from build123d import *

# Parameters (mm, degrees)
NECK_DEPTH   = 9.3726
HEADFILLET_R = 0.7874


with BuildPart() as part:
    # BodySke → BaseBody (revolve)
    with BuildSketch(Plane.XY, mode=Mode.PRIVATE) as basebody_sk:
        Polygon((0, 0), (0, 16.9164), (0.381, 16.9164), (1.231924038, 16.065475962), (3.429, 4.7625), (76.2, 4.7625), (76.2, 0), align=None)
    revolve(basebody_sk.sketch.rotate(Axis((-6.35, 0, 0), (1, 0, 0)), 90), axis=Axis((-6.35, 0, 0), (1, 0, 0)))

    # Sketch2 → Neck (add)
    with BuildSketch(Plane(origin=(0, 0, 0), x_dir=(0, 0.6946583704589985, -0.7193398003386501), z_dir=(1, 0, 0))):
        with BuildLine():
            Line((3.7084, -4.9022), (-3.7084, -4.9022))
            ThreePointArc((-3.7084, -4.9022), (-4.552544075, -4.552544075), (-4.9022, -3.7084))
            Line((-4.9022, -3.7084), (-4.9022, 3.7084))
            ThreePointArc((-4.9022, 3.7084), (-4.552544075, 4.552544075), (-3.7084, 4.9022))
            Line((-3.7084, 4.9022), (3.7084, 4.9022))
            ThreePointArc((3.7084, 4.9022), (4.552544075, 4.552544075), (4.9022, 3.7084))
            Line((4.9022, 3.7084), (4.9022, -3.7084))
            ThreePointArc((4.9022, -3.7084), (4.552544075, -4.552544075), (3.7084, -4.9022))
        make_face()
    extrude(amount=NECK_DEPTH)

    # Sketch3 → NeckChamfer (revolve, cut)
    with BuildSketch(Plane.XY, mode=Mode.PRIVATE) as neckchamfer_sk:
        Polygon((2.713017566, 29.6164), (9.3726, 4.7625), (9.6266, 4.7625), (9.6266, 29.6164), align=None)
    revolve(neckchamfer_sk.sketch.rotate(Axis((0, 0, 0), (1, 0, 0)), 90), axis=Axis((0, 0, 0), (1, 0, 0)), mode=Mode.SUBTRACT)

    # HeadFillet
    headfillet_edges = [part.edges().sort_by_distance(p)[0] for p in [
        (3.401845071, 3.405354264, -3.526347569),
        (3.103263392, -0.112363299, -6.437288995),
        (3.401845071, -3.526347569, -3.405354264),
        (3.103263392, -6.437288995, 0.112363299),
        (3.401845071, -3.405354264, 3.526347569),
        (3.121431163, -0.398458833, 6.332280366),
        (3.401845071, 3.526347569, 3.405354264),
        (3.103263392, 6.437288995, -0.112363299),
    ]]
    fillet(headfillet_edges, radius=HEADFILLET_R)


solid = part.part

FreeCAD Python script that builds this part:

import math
import FreeCAD as App
import Part
import Sketcher
Q = App.Units.Quantity


def edges_at(feature, points):
    """Names of the edges that pass closest to the given points."""
    edges = feature.Shape.Edges
    near = lambda p: min(range(len(edges)), key=lambda i: edges[i].distToShape(Part.Vertex(*p))[0])
    return sorted({f"Edge{near(p) + 1}" for p in points})

doc = App.newDocument("Part")
params = doc.addObject("Spreadsheet::Sheet", "Params")
for row, (alias, value) in enumerate([
    ("sketch1_width", "3 in"),
    ("sketch1_width2", "2.865 in"),
    ("sketch1_width3", "0.015 in"),
    ("sketch1_height", "0.666 in"),
    ("sketch1_height2", "0.1875 in"),
    ("revolution_angle", "360 deg"),
    ("sketch2_radius", "0.047 in"),
    ("sketch2_length", "0.292 in"),
    ("pad1_length", "0.369 in"),
    ("sketch3_width", "0.01 in"),
    ("groove_angle", "360 deg"),
    ("fillet_radius", "0.031 in"),
], start=1):
    params.set(f"A{row}", alias)
    params.set(f"B{row}", "=" + value)
    params.setAlias(f"B{row}", alias)

body = doc.addObject("PartDesign::Body", "Body")

# Sketch on XY plane
sketch1 = body.newObject("Sketcher::SketchObject", "Sketch")
sketch1.AttachmentSupport = (doc.getObject("XY_Plane"), [""])
sketch1.MapMode = "FlatFace"
sketch1.addGeometry([
    Part.LineSegment(App.Vector(0, 16.92, 0), App.Vector(0, 0, 0)),  # 0
    Part.LineSegment(App.Vector(0, 0, 0), App.Vector(76.2, 0, 0)),  # 1
    Part.LineSegment(App.Vector(76.2, 0, 0), App.Vector(76.2, 4.76, 0)),  # 2
    Part.LineSegment(App.Vector(76.2, 4.76, 0), App.Vector(3.43, 4.76, 0)),  # 3
    Part.LineSegment(App.Vector(3.43, 4.76, 0), App.Vector(1.23, 16.07, 0)),  # 4
    Part.LineSegment(App.Vector(1.23, 16.07, 0), App.Vector(0.38, 16.92, 0)),  # 5
    Part.LineSegment(App.Vector(0.38, 16.92, 0), App.Vector(0, 16.92, 0)),  # 6
], False)
sketch1.addConstraint([
    Sketcher.Constraint("Coincident", 0, 2, 1, 1),
    Sketcher.Constraint("Coincident", 1, 2, 2, 1),
    Sketcher.Constraint("Coincident", 2, 2, 3, 1),
    Sketcher.Constraint("Coincident", 3, 2, 4, 1),
    Sketcher.Constraint("Coincident", 4, 2, 5, 1),
    Sketcher.Constraint("Coincident", 5, 2, 6, 1),
    Sketcher.Constraint("Coincident", 6, 2, 0, 1),
    Sketcher.Constraint("Vertical", 0),
    Sketcher.Constraint("Horizontal", 1),
    Sketcher.Constraint("Vertical", 2),
    Sketcher.Constraint("Horizontal", 3),
    Sketcher.Constraint("Horizontal", 6),
    Sketcher.Constraint("Coincident", 0, 2, -1, 1),
    Sketcher.Constraint("DistanceX", 1, 1, 1, 2, Q("3 in")),
    Sketcher.Constraint("Angle", 4, Q("101 deg")),
    Sketcher.Constraint("Angle", 5, Q("135 deg")),
    Sketcher.Constraint("DistanceX", 3, 2, 3, 1, Q("2.865 in")),
    Sketcher.Constraint("DistanceX", 6, 2, 6, 1, Q("0.015 in")),
    Sketcher.Constraint("DistanceY", 0, 2, 0, 1, Q("0.666 in")),
    Sketcher.Constraint("DistanceY", 2, 1, 2, 2, Q("0.1875 in")),
])
sketch1.setExpression("Constraints[13]", "Params.sketch1_width")
sketch1.setExpression("Constraints[16]", "Params.sketch1_width2")
sketch1.setExpression("Constraints[17]", "Params.sketch1_width3")
sketch1.setExpression("Constraints[18]", "Params.sketch1_height")
sketch1.setExpression("Constraints[19]", "Params.sketch1_height2")
revolution = body.newObject("PartDesign::Revolution", "Revolution")
revolution.Profile = sketch1
revolution.ReferenceAxis = (sketch1, ["H_Axis"])
revolution.setExpression("Angle", "Params.revolution_angle")

# Sketch on YZ plane
sketch2 = body.newObject("Sketcher::SketchObject", "Sketch001")
sketch2.AttachmentSupport = (doc.getObject("YZ_Plane"), [""])
sketch2.MapMode = "FlatFace"
sketch2.addGeometry([
    Part.LineSegment(App.Vector(-6.1, -0.7, 0), App.Vector(-1, -6.1, 0)),  # 0
    Part.ArcOfCircle(Part.Circle(App.Vector(-0.1, -5.2, 0), App.Vector(0, 0, 1), 1.2), math.radians(-136), math.radians(-46)),  # 1
    Part.LineSegment(App.Vector(0.7, -6.1, 0), App.Vector(6.1, -1, 0)),  # 2
    Part.ArcOfCircle(Part.Circle(App.Vector(5.2, -0.1, 0), App.Vector(0, 0, 1), 1.2), math.radians(-46), math.radians(44)),  # 3
    Part.LineSegment(App.Vector(6.1, 0.7, 0), App.Vector(1, 6.1, 0)),  # 4
    Part.ArcOfCircle(Part.Circle(App.Vector(0.1, 5.2, 0), App.Vector(0, 0, 1), 1.2), math.radians(44), math.radians(134)),  # 5
    Part.LineSegment(App.Vector(-0.7, 6.1, 0), App.Vector(-6.1, 1, 0)),  # 6
    Part.ArcOfCircle(Part.Circle(App.Vector(-5.2, 0.1, 0), App.Vector(0, 0, 1), 1.2), math.radians(134), math.radians(224)),  # 7
], False)
sketch2.addConstraint([
    Sketcher.Constraint("Tangent", 0, 2, 1, 1),
    Sketcher.Constraint("Tangent", 1, 2, 2, 1),
    Sketcher.Constraint("Tangent", 2, 2, 3, 1),
    Sketcher.Constraint("Tangent", 3, 2, 4, 1),
    Sketcher.Constraint("Tangent", 4, 2, 5, 1),
    Sketcher.Constraint("Tangent", 5, 2, 6, 1),
    Sketcher.Constraint("Tangent", 6, 2, 7, 1),
    Sketcher.Constraint("Tangent", 7, 2, 0, 1),
    Sketcher.Constraint("Equal", 1, 3),
    Sketcher.Constraint("Equal", 3, 5),
    Sketcher.Constraint("Equal", 5, 7),
    Sketcher.Constraint("Symmetric", 1, 3, 5, 3, -1, 1),
    Sketcher.Constraint("Symmetric", 3, 3, 7, 3, -1, 1),
    Sketcher.Constraint("Perpendicular", 0, 2),
    Sketcher.Constraint("Equal", 0, 2),
    Sketcher.Constraint("Angle", 0, Q("-46 deg")),
    Sketcher.Constraint("Radius", 1, Q("0.047 in")),
    Sketcher.Constraint("Distance", 0, Q("0.292 in")),
])
sketch2.setExpression("Constraints[16]", "Params.sketch2_radius")
sketch2.setExpression("Constraints[17]", "Params.sketch2_length")
pad1 = body.newObject("PartDesign::Pad", "Pad")
pad1.Profile = sketch2
pad1.setExpression("Length", "Params.pad1_length")

# Sketch on XY plane
sketch3 = body.newObject("Sketcher::SketchObject", "Sketch002")
sketch3.AttachmentSupport = (doc.getObject("XY_Plane"), [""])
sketch3.MapMode = "FlatFace"
sketch3.addGeometry([
    Part.LineSegment(App.Vector(2.71, 29.62, 0), App.Vector(9.37, 4.76, 0)),
    Part.LineSegment(App.Vector(9.37, 4.76, 0), App.Vector(9.63, 4.76, 0)),
    Part.LineSegment(App.Vector(9.63, 4.76, 0), App.Vector(9.63, 29.62, 0)),
    Part.LineSegment(App.Vector(9.63, 29.62, 0), App.Vector(2.71, 29.62, 0)),
], False)
sketch3.addConstraint([
    Sketcher.Constraint("Coincident", 0, 2, 1, 1),
    Sketcher.Constraint("Coincident", 1, 2, 2, 1),
    Sketcher.Constraint("Coincident", 2, 2, 3, 1),
    Sketcher.Constraint("Coincident", 3, 2, 0, 1),
    Sketcher.Constraint("Horizontal", 1),
    Sketcher.Constraint("Vertical", 2),
    Sketcher.Constraint("Horizontal", 3),
    Sketcher.Constraint("Angle", 0, Q("-75 deg")),
    Sketcher.Constraint("DistanceX", 1, 1, 1, 2, Q("0.01 in")),
    Sketcher.Constraint("DistanceY", 2, 1, 2, 2, Q("0.9785 in")),
    Sketcher.Constraint("DistanceX", -1, 1, 0, 2, Q("0.369 in")),
    Sketcher.Constraint("DistanceY", -1, 1, 0, 2, Q("0.1875 in")),
])
sketch3.setExpression("Constraints[8]", "Params.sketch3_width")
groove = body.newObject("PartDesign::Groove", "Groove")
groove.Profile = sketch3
groove.ReferenceAxis = (sketch3, ["H_Axis"])
groove.setExpression("Angle", "Params.groove_angle")
doc.recompute()

fillet = body.newObject("PartDesign::Fillet", "Fillet")
fillet.Base = (groove, edges_at(groove, [
    (3.402, 3.405, -3.526),
    (3.103, -0.112, -6.437),
    (3.402, -3.526, -3.405),
    (3.103, -6.437, 0.112),
    (3.402, -3.405, 3.526),
    (3.121, -0.398, 6.332),
    (3.402, 3.526, 3.405),
    (3.103, 6.437, -0.112),
]))
fillet.setExpression("Radius", "Params.fillet_radius")

doc.recompute()
